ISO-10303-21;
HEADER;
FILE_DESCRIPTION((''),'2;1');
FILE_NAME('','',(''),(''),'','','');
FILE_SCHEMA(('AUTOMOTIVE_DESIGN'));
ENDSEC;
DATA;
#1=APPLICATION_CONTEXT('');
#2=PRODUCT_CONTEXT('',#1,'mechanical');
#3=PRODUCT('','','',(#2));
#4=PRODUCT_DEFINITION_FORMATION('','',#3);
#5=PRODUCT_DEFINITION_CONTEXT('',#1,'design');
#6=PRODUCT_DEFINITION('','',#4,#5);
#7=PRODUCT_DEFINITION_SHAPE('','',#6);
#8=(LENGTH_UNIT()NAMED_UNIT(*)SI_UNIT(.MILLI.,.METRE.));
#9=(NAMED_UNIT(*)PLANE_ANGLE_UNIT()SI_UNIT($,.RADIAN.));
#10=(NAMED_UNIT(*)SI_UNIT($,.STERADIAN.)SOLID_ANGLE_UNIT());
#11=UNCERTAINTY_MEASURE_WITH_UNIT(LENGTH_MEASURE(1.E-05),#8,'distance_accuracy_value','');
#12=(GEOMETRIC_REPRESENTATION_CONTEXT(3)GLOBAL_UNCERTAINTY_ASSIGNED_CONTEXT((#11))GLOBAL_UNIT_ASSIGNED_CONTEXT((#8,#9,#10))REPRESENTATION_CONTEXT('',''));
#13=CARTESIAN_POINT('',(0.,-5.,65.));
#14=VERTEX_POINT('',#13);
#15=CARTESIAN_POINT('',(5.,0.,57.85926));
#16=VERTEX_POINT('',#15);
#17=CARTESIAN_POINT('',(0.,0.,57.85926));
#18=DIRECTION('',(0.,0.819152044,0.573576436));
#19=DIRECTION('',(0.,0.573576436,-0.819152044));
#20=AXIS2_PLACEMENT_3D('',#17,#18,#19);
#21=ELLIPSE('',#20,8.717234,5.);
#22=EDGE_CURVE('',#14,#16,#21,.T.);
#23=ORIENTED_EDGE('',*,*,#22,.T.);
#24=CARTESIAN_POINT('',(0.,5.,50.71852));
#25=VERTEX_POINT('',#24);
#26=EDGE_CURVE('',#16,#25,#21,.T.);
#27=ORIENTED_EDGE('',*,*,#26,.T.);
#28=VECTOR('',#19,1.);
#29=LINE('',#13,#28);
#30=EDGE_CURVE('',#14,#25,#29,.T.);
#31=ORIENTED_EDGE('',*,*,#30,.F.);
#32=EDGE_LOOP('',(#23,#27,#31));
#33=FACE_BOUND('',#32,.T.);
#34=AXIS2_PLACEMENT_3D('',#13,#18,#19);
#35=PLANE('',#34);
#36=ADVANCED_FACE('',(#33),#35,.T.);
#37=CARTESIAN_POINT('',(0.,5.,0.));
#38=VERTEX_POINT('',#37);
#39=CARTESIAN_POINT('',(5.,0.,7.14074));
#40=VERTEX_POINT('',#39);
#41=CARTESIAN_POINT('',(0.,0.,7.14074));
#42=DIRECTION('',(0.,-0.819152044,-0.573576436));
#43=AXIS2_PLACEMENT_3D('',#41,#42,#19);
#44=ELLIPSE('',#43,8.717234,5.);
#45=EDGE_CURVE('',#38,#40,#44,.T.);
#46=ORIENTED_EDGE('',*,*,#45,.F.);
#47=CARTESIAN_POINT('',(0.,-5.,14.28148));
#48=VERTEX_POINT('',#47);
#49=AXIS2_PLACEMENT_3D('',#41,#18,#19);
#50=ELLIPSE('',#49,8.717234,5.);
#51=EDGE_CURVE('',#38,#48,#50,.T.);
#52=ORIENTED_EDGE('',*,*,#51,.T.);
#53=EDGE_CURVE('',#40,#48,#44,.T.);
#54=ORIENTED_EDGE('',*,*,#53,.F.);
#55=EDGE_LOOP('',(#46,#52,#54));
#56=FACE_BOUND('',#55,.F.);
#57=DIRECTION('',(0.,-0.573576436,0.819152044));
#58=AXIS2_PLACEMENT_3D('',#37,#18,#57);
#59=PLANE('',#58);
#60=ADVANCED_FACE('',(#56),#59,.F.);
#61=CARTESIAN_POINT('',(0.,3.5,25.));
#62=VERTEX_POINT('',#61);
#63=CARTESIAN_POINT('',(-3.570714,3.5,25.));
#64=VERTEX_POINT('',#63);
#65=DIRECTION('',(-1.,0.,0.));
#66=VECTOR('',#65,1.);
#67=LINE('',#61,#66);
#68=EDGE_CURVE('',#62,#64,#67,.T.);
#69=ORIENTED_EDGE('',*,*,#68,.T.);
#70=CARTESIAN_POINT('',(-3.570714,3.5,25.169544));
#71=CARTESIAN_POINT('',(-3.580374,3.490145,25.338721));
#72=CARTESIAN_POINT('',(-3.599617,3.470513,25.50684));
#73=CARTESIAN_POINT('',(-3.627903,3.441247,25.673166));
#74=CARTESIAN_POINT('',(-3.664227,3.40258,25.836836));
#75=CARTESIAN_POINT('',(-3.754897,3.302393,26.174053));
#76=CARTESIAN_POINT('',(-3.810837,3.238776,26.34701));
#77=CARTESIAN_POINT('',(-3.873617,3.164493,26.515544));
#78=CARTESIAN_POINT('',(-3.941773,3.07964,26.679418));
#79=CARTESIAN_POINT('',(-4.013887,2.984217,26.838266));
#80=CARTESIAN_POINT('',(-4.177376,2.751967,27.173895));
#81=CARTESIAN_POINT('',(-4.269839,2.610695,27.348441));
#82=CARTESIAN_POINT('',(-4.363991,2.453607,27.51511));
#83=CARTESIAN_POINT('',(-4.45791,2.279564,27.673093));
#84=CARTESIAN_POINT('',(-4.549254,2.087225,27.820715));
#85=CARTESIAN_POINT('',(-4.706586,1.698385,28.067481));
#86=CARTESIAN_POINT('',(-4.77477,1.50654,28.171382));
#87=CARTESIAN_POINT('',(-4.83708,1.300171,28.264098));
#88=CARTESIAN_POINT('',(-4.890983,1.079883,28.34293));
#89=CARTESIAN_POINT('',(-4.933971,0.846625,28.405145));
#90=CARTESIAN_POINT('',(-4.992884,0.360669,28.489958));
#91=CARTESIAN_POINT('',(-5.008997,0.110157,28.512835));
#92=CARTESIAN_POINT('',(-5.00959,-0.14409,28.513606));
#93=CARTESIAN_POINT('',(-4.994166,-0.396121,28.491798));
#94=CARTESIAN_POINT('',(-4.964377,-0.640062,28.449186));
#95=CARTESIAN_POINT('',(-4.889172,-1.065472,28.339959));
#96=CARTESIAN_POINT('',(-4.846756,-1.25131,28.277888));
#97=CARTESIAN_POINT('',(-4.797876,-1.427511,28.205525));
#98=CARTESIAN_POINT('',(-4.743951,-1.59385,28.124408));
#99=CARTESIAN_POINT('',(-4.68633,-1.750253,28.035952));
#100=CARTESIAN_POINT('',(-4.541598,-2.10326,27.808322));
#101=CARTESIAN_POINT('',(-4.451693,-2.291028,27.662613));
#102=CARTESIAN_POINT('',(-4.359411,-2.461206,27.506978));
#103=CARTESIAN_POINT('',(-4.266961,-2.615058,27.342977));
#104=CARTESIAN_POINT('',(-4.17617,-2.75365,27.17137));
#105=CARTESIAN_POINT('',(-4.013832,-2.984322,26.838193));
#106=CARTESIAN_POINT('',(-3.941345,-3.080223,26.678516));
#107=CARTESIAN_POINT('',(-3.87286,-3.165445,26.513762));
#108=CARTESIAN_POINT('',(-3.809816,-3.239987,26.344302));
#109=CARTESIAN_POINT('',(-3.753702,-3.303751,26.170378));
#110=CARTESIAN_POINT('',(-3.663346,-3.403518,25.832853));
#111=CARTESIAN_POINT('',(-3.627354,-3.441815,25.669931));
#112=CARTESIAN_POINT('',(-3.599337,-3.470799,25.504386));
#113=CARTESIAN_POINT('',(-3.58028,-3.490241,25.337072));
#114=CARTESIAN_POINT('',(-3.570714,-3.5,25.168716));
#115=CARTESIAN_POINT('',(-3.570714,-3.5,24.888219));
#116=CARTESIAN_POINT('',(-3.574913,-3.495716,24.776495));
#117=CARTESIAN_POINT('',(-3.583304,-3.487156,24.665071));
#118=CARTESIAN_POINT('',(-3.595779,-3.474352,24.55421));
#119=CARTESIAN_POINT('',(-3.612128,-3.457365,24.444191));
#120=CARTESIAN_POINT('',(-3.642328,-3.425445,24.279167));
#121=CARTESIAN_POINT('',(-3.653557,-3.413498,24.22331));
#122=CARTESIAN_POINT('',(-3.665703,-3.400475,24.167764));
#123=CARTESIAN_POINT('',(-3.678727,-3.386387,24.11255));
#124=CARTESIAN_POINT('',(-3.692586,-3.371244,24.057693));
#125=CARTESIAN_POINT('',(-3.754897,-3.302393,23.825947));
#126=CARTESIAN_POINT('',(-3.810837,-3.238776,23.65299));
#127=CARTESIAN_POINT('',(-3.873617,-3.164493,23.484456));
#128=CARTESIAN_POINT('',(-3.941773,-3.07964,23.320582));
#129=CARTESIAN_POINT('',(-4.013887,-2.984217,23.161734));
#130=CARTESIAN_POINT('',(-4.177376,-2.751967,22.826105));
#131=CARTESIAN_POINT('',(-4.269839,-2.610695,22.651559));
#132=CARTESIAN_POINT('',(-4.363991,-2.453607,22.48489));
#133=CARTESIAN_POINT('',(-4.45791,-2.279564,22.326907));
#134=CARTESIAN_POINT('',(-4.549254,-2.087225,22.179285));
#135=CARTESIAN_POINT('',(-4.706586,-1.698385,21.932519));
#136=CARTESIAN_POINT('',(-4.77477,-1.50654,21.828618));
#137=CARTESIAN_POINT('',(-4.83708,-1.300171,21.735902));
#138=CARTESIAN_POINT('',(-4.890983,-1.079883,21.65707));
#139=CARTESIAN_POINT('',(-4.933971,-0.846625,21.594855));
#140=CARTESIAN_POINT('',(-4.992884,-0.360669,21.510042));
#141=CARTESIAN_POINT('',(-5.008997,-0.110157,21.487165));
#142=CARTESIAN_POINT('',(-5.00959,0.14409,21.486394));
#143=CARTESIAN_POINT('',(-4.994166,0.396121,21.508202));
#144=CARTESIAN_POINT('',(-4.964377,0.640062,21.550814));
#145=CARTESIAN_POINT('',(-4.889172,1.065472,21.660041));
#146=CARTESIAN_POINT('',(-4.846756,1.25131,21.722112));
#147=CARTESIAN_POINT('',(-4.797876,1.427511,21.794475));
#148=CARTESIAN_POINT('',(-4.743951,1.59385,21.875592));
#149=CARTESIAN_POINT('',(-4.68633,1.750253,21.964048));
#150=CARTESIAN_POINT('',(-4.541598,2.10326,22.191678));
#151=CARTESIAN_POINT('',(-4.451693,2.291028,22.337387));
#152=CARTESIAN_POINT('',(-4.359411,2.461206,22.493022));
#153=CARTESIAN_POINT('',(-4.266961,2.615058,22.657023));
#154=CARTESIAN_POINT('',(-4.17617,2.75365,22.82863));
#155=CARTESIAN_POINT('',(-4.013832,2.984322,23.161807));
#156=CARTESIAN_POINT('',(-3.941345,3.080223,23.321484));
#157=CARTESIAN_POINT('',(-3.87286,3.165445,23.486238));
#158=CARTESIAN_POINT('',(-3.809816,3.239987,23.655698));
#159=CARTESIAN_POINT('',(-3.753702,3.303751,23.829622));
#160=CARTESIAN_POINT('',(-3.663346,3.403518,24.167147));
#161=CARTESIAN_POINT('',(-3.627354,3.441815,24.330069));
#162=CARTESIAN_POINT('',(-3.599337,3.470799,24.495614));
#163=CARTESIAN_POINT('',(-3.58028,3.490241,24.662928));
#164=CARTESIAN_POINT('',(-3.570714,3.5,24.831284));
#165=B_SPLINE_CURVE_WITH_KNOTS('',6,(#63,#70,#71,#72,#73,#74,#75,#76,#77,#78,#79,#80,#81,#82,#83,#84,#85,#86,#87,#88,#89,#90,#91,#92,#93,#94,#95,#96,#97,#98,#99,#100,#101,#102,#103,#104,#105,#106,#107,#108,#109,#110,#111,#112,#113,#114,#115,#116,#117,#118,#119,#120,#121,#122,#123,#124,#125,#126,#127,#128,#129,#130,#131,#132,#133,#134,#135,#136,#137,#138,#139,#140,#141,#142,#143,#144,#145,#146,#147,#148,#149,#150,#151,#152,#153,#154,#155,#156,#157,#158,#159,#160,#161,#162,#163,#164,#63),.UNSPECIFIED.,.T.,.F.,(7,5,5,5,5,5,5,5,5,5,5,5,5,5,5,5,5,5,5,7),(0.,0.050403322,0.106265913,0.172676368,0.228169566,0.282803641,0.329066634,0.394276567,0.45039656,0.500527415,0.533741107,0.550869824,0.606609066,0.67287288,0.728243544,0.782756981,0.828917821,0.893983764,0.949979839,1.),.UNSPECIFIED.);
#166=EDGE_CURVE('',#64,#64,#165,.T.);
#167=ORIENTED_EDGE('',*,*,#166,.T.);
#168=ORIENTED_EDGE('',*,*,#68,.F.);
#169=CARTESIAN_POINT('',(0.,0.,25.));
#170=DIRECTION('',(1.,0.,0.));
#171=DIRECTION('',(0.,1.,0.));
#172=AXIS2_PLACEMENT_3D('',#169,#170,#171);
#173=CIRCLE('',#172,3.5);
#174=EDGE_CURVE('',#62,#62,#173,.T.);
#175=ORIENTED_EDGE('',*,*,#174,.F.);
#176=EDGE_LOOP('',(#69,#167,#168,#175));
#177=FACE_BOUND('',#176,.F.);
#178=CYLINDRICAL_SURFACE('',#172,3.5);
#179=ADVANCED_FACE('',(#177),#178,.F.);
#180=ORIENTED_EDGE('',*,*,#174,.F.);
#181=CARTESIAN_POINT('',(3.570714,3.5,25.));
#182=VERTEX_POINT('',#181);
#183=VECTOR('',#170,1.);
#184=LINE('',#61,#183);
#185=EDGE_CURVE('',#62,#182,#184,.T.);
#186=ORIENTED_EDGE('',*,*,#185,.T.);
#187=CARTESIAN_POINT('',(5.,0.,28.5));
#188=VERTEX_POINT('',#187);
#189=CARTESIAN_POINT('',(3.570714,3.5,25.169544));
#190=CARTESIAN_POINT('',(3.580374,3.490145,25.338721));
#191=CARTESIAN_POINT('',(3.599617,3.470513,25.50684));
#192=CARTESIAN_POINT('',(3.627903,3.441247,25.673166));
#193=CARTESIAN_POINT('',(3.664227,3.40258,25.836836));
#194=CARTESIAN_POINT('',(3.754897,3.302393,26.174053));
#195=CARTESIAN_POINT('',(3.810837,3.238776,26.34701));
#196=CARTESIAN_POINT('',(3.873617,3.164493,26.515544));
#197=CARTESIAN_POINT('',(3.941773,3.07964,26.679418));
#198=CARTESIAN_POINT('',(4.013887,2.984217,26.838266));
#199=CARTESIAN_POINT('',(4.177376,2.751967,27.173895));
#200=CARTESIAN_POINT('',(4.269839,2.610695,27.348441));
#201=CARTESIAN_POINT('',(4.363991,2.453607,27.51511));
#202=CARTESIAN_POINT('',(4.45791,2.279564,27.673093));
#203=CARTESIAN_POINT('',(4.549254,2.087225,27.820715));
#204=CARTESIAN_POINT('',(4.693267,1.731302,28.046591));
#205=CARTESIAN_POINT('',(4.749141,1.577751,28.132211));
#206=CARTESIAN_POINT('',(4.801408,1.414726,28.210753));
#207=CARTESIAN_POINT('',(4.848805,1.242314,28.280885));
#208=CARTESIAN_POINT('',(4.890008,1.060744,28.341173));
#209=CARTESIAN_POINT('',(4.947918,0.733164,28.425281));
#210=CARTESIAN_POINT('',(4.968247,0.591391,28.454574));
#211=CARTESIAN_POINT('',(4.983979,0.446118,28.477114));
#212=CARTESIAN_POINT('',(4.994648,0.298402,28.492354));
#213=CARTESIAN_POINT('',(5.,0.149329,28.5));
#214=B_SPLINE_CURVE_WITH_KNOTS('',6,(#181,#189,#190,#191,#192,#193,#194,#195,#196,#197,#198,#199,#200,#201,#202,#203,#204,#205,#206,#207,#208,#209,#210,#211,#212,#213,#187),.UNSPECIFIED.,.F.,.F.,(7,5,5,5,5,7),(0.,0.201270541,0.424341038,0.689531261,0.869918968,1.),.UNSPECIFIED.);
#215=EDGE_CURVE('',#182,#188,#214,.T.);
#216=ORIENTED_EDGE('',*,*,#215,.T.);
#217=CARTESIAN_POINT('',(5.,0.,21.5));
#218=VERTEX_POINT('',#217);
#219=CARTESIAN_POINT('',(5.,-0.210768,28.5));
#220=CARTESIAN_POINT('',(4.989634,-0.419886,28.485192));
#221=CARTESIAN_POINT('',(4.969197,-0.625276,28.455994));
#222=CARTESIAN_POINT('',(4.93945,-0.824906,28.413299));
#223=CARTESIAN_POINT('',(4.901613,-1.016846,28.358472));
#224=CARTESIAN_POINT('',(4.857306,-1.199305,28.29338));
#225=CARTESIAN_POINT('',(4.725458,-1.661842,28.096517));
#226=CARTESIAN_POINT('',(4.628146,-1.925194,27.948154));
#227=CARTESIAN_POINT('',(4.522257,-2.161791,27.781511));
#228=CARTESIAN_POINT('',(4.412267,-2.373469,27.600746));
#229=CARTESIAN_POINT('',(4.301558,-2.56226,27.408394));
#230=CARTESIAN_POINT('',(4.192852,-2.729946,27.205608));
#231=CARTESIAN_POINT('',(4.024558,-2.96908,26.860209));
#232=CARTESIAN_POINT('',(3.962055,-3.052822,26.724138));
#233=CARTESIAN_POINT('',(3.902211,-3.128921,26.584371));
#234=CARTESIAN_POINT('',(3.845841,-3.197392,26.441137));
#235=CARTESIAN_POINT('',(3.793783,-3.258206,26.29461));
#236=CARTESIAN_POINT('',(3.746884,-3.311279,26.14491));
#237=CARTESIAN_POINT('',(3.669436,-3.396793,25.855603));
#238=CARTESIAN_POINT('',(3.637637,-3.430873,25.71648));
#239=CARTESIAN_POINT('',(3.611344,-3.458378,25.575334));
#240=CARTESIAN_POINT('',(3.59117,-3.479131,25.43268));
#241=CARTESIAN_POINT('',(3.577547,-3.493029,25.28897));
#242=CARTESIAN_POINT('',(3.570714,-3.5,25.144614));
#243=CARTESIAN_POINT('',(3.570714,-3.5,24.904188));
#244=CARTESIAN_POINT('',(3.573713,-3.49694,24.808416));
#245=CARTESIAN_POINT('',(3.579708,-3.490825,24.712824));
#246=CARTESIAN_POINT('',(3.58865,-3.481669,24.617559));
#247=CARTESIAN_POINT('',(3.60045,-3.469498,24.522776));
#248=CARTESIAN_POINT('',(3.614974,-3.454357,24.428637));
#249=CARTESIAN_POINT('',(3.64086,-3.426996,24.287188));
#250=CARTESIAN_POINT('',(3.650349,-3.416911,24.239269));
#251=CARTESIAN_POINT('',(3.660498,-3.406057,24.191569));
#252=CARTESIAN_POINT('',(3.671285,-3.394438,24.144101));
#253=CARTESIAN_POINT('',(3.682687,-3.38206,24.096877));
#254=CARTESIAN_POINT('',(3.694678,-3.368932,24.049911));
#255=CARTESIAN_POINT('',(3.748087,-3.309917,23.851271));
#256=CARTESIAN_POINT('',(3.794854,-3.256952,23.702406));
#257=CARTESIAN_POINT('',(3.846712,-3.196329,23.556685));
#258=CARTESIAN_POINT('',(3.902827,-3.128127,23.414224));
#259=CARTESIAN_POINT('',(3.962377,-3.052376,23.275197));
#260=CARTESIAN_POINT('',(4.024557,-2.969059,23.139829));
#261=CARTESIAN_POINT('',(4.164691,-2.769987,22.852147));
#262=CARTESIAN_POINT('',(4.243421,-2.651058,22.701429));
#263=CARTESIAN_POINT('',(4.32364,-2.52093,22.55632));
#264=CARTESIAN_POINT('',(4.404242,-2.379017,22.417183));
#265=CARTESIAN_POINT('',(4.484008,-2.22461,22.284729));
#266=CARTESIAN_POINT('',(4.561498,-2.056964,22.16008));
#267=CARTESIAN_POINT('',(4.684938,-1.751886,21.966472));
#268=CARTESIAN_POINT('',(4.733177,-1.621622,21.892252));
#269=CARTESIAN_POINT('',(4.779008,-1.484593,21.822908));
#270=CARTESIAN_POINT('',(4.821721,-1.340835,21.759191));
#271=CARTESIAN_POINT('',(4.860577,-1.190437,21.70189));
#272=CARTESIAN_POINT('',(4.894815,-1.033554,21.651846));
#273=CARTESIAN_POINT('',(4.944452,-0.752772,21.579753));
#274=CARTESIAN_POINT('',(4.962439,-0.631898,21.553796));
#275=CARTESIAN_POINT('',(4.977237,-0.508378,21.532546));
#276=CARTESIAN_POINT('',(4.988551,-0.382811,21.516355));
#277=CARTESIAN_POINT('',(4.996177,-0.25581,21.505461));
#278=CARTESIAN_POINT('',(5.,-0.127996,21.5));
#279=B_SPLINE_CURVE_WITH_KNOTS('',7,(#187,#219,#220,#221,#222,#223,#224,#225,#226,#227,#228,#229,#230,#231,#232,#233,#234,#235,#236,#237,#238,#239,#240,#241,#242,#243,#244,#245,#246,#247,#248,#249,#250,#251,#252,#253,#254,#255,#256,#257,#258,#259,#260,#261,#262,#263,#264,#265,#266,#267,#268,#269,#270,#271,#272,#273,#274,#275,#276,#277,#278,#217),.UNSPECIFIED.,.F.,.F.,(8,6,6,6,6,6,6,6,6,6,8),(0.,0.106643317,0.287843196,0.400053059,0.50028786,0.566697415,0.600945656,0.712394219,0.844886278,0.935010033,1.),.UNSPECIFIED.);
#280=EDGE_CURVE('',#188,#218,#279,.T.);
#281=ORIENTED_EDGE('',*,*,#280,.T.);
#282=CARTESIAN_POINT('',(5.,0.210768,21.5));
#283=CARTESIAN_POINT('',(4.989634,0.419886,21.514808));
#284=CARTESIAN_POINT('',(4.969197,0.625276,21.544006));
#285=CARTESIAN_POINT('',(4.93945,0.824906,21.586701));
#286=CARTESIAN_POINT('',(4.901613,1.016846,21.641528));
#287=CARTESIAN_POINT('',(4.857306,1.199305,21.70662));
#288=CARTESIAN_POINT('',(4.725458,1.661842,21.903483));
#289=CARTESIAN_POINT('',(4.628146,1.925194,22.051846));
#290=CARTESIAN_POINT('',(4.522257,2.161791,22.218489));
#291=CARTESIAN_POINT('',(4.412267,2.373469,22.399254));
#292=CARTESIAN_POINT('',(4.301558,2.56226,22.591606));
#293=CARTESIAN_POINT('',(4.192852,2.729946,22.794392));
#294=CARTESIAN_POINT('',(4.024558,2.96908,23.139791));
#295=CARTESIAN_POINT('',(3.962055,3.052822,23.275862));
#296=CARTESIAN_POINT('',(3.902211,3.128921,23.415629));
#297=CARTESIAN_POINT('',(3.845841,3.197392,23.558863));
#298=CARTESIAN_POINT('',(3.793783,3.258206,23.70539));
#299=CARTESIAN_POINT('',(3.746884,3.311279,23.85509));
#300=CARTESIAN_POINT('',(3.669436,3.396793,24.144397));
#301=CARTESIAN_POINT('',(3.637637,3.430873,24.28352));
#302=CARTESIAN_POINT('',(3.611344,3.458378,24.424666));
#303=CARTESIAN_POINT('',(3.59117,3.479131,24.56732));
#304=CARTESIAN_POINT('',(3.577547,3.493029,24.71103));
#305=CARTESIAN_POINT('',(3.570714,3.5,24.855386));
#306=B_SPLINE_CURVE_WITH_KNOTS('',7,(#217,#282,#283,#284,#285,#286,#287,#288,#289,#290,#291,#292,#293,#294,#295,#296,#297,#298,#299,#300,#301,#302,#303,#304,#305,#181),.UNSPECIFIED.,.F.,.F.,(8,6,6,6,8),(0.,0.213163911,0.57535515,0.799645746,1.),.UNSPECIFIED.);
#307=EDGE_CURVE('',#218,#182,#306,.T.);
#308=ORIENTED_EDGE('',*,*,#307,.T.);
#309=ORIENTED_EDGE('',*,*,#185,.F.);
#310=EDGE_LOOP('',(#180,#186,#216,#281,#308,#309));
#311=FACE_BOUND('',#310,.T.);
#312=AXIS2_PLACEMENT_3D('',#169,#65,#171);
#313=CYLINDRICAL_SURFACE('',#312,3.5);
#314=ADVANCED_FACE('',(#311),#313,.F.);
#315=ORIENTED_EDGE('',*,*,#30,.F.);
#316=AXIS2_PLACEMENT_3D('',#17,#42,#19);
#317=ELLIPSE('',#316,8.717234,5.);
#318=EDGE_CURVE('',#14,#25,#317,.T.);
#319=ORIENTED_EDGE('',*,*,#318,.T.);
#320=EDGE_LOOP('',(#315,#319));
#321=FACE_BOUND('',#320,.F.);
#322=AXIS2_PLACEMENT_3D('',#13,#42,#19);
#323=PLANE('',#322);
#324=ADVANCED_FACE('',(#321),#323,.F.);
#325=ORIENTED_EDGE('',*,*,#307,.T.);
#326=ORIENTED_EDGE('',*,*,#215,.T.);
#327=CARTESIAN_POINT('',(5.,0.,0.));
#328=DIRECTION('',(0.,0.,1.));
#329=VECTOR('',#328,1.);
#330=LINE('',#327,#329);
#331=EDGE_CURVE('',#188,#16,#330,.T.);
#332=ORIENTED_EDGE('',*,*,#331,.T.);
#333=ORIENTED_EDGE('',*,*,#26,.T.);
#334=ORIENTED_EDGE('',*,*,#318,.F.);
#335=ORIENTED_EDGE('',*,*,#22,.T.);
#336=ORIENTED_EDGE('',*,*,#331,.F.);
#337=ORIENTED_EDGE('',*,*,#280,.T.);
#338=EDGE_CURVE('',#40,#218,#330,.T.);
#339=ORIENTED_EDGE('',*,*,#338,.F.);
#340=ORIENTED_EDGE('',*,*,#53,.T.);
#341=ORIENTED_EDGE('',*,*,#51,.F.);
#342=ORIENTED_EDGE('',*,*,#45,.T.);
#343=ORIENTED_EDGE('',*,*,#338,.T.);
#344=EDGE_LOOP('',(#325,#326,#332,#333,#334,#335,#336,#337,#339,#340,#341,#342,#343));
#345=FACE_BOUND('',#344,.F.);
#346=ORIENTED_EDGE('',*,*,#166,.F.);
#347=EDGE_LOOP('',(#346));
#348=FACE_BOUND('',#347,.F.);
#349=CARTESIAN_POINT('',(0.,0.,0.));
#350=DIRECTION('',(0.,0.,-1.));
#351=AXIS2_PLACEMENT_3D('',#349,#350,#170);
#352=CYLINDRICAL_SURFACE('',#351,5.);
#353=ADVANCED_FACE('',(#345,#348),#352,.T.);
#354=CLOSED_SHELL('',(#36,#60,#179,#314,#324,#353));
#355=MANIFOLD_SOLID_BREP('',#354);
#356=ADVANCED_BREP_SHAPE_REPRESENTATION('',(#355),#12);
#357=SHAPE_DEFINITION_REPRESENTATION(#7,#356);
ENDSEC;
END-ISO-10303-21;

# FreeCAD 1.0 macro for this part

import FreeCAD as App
import Part
import Sketcher

V = App.Vector
Q = App.Units.Quantity


def add_polygon(sketch, points):
    """Adds a closed chain of lines whose ends are joined by coincident constraints."""
    first, n = sketch.GeometryCount, len(points)
    for a, b in zip(points, points[1:] + points[:1]):
        sketch.addGeometry(Part.LineSegment(App.Vector(*a, 0), App.Vector(*b, 0)), False)
    for i in range(n):
        sketch.addConstraint(Sketcher.Constraint("Coincident", first + i, 2, first + (i + 1) % n, 1))

doc = App.newDocument("Part")
body = doc.addObject("PartDesign::Body", "Body")

# Sketch on XY plane
sketch1 = doc.addObject("Sketcher::SketchObject", "Sketch")
body.addObject(sketch1)
sketch1.AttachmentSupport = (doc.XY_Plane, [""])
sketch1.MapMode = "FlatFace"
sketch1.addGeometry(Part.Circle(V(0, 0, 0), V(0, 0, 1), 5), False)
sketch1.addConstraint(Sketcher.Constraint("Coincident", 0, 3, -1, 1))
sketch1.addConstraint(Sketcher.Constraint("Diameter", 0, Q("10 mm")))
pad1 = doc.addObject("PartDesign::Pad", "Pad")
body.addObject(pad1)
pad1.Profile = sketch1
pad1.Length = 65

# Sketch on YZ plane
sketch2 = doc.addObject("Sketcher::SketchObject", "Sketch001")
body.addObject(sketch2)
sketch2.AttachmentSupport = (doc.YZ_Plane, [""])
sketch2.MapMode = "FlatFace"
add_polygon(sketch2, [(-5, 14.28148), (-5, 0), (5, 0)])  # lines 0-2
add_polygon(sketch2, [(5, 50.71852), (5, 65), (-5, 65)])  # lines 3-5
sketch2.addGeometry(Part.Circle(V(0, 25, 0), V(0, 0, 1), 3.5), False)  # 6
sketch2.addConstraint(Sketcher.Constraint("Vertical", 0))
sketch2.addConstraint(Sketcher.Constraint("Horizontal", 1))
sketch2.addConstraint(Sketcher.Constraint("Vertical", 3))
sketch2.addConstraint(Sketcher.Constraint("Horizontal", 4))
sketch2.addConstraint(Sketcher.Constraint("Symmetric", 0, 2, 1, 2, -1, 1))
sketch2.addConstraint(Sketcher.Constraint("PointOnObject", 6, 3, -2))
sketch2.addConstraint(Sketcher.Constraint("Parallel", 2, 5))
sketch2.addConstraint(Sketcher.Constraint("Vertical", 1, 2, 3, 2))
sketch2.addConstraint(Sketcher.Constraint("Vertical", 2, 2, 4, 2))
sketch2.addConstraint(Sketcher.Constraint("Diameter", 6, Q("7 mm")))
sketch2.addConstraint(Sketcher.Constraint("DistanceX", 1, 1, 1, 2, Q("10 mm")))
sketch2.addConstraint(Sketcher.Constraint("Angle", 2, Q("125 deg")))
sketch2.addConstraint(Sketcher.Constraint("DistanceY", -1, 1, 6, 3, Q("25 mm")))
sketch2.addConstraint(Sketcher.Constraint("DistanceY", -1, 1, 3, 2, Q("65 mm")))
pocket1 = doc.addObject("PartDesign::Pocket", "Pocket")
body.addObject(pocket1)
pocket1.Profile = sketch2
pocket1.Type = "ThroughAll"
pocket1.Midplane = True

doc.recompute()
